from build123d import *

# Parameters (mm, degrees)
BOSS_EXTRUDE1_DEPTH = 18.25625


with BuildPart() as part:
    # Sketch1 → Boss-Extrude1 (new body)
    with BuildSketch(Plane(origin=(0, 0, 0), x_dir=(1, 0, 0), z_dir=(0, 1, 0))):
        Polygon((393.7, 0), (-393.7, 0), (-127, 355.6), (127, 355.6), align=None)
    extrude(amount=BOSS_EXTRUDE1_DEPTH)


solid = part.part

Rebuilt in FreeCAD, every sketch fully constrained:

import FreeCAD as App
import Part
import Sketcher

V = App.Vector
Q = App.Units.Quantity


def add_polygon(sketch, points):
    """Adds a closed chain of lines whose ends are joined by coincident constraints."""
    first, n = sketch.GeometryCount, len(points)
    for a, b in zip(points, points[1:] + points[:1]):
        sketch.addGeometry(Part.LineSegment(App.Vector(*a, 0), App.Vector(*b, 0)), False)
    for i in range(n):
        sketch.addConstraint(Sketcher.Constraint("Coincident", first + i, 2, first + (i + 1) % n, 1))

doc = App.newDocument("Part")
params = doc.addObject("Spreadsheet::Sheet", "Params")
for row, (alias, value) in enumerate([
    ("sketch1_width", "31 in"),
    ("sketch1_width2", "10 in"),
    ("pad1_length", "0.71875 in"),
], start=1):
    params.set(f"A{row}", alias)
    params.set(f"B{row}", "=" + value)
    params.setAlias(f"B{row}", alias)

body = doc.addObject("PartDesign::Body", "Body")

# Sketch on XZ plane
sketch1 = body.newObject("Sketcher::SketchObject", "Sketch")
sketch1.AttachmentSupport = (doc.getObject("XZ_Plane"), [""])
sketch1.MapMode = "FlatFace"
add_polygon(sketch1, [(-394, 0), (394, 0), (127, -356), (-127, -356)])  # lines 0-3
sketch1.addConstraint([
    Sketcher.Constraint("Horizontal", 0),
    Sketcher.Constraint("Horizontal", 2),
    Sketcher.Constraint("Symmetric", 0, 2, 3, 2, -1, 1),
    Sketcher.Constraint("Equal", 1, 3),
    Sketcher.Constraint("DistanceX", 0, 1, 0, 2, Q("31 in")),
    Sketcher.Constraint("DistanceX", 2, 2, 2, 1, Q("10 in")),
    Sketcher.Constraint("DistanceY", 1, 2, -1, 1, Q("14 in")),
])
sketch1.setExpression("Constraints[8]", "Params.sketch1_width")
sketch1.setExpression("Constraints[9]", "Params.sketch1_width2")
pad1 = body.newObject("PartDesign::Pad", "Pad")
pad1.Profile = sketch1
pad1.setExpression("Length", "Params.pad1_length")
pad1.Reversed = True

doc.recompute()
